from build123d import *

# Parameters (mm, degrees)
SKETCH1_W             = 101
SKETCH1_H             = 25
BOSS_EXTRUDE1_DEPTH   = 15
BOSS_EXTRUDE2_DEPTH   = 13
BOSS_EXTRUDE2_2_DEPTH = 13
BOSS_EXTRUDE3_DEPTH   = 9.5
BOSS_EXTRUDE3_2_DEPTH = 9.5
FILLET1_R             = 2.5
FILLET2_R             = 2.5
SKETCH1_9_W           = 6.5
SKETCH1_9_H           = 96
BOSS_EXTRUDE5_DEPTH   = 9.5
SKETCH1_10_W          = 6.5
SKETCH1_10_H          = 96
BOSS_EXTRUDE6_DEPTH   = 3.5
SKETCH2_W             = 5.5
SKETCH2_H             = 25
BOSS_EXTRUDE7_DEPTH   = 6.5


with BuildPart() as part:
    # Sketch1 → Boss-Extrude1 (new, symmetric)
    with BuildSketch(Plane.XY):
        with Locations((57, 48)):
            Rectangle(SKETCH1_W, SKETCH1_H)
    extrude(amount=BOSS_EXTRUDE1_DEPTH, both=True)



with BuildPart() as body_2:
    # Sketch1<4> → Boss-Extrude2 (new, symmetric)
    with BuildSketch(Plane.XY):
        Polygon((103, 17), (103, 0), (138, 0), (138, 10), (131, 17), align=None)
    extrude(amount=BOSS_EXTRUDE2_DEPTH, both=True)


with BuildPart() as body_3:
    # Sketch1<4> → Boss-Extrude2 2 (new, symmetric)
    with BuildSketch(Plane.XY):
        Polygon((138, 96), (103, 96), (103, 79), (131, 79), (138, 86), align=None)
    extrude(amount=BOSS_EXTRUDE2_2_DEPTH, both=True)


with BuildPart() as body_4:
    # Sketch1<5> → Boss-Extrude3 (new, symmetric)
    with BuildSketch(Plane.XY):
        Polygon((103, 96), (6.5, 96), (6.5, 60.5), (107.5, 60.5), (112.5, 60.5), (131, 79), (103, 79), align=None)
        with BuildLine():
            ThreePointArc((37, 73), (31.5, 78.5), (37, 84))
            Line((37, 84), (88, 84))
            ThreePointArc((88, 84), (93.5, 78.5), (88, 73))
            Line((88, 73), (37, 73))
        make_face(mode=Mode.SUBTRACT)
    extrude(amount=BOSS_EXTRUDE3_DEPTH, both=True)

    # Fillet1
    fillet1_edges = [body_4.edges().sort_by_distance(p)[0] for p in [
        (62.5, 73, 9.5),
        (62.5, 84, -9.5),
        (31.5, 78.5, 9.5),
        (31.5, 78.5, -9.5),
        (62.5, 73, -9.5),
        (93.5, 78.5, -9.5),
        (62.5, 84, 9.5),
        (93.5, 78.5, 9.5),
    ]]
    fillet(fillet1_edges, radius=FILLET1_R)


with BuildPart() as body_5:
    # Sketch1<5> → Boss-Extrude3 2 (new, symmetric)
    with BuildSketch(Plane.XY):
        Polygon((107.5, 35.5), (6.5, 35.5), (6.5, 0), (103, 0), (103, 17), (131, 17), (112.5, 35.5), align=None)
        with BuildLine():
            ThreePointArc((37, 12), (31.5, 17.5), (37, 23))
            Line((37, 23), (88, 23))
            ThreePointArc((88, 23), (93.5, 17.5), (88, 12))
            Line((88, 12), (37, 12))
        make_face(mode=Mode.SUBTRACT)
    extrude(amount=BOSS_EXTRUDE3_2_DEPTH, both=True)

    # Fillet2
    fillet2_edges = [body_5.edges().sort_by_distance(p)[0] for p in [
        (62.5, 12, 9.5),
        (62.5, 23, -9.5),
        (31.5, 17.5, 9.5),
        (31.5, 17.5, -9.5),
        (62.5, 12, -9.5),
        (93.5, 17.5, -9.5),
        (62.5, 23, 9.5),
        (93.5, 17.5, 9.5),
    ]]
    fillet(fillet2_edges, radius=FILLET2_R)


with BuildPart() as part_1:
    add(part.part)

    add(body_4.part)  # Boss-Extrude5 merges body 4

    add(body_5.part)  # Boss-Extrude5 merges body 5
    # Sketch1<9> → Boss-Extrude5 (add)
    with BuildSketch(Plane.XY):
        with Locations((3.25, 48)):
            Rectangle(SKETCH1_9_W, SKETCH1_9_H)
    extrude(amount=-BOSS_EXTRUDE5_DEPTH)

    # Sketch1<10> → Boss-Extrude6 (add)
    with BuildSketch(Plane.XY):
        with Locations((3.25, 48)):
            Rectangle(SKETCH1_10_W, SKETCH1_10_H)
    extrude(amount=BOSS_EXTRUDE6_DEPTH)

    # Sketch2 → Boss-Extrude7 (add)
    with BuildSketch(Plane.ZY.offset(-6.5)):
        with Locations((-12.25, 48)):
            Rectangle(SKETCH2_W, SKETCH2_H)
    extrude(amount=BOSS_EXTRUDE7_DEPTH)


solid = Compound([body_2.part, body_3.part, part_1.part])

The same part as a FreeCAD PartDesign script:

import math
import FreeCAD as App
import Part
import Sketcher
from FreeCAD import Vector
Q = App.Units.Quantity


def edges_at(feature, points):
    """Names of the edges that pass closest to the given points."""
    edges = feature.Shape.Edges
    near = lambda p: min(range(len(edges)), key=lambda i: edges[i].distToShape(Part.Vertex(*p))[0])
    return sorted({f"Edge{near(p) + 1}" for p in points})

doc = App.newDocument("Part")
body = doc.addObject("PartDesign::Body", "Body")

sketch1 = body.newObject("Sketcher::SketchObject", "Sketch")
sketch1.AttachmentSupport = (doc.getObject("XY_Plane"), [""])
sketch1.MapMode = "FlatFace"
sketch1.addGeometry([
    Part.LineSegment(Vector(6.5, 60.5, 0), Vector(6.5, 35.5, 0)),
    Part.LineSegment(Vector(6.5, 35.5, 0), Vector(107.5, 35.5, 0)),
    Part.LineSegment(Vector(107.5, 35.5, 0), Vector(107.5, 60.5, 0)),
    Part.LineSegment(Vector(107.5, 60.5, 0), Vector(6.5, 60.5, 0)),
], False)
sketch1.addConstraint([
    Sketcher.Constraint("Coincident", 0, 2, 1, 1),
    Sketcher.Constraint("Coincident", 1, 2, 2, 1),
    Sketcher.Constraint("Coincident", 2, 2, 3, 1),
    Sketcher.Constraint("Coincident", 3, 2, 0, 1),
    Sketcher.Constraint("Vertical", 0),
    Sketcher.Constraint("Horizontal", 1),
    Sketcher.Constraint("Vertical", 2),
    Sketcher.Constraint("Horizontal", 3),
    Sketcher.Constraint("DistanceX", 1, 1, 1, 2, 101.0),
    Sketcher.Constraint("DistanceY", 0, 2, 0, 1, 25.0),
    Sketcher.Constraint("DistanceX", -1, 1, 0, 2, 6.5),
    Sketcher.Constraint("DistanceY", -1, 1, 0, 2, 35.5),
])
pad1 = body.newObject("PartDesign::Pad", "Pad")
pad1.Profile = sketch1
pad1.Length = 30
pad1.Midplane = True
body2 = doc.addObject("PartDesign::Body", "Body001")

sketch2 = body2.newObject("Sketcher::SketchObject", "Sketch001")
sketch2.AttachmentSupport = (doc.getObject("XY_Plane001"), [""])
sketch2.MapMode = "FlatFace"
sketch2.addGeometry([
    Part.LineSegment(Vector(103, 17, 0), Vector(103, 0, 0)),
    Part.LineSegment(Vector(103, 0, 0), Vector(138, 0, 0)),
    Part.LineSegment(Vector(138, 0, 0), Vector(138, 10, 0)),
    Part.LineSegment(Vector(138, 10, 0), Vector(131, 17, 0)),
    Part.LineSegment(Vector(131, 17, 0), Vector(103, 17, 0)),
], False)
sketch2.addConstraint([
    Sketcher.Constraint("Coincident", 0, 2, 1, 1),
    Sketcher.Constraint("Coincident", 1, 2, 2, 1),
    Sketcher.Constraint("Coincident", 2, 2, 3, 1),
    Sketcher.Constraint("Coincident", 3, 2, 4, 1),
    Sketcher.Constraint("Coincident", 4, 2, 0, 1),
    Sketcher.Constraint("Vertical", 0),
    Sketcher.Constraint("Horizontal", 1),
    Sketcher.Constraint("Vertical", 2),
    Sketcher.Constraint("Horizontal", 4),
    Sketcher.Constraint("PointOnObject", 0, 2, -1),
    Sketcher.Constraint("DistanceX", 1, 1, 1, 2, 35.0),
    Sketcher.Constraint("DistanceX", 4, 2, 4, 1, 28.0),
    Sketcher.Constraint("DistanceY", 0, 2, 0, 1, 17.0),
    Sketcher.Constraint("DistanceY", 2, 1, 2, 2, 10.0),
    Sketcher.Constraint("DistanceX", -1, 1, 0, 2, 103.0),
])
pad2 = body2.newObject("PartDesign::Pad", "Pad001")
pad2.Profile = sketch2
pad2.Length = 26
pad2.Midplane = True
body3 = doc.addObject("PartDesign::Body", "Body002")

sketch3 = body3.newObject("Sketcher::SketchObject", "Sketch002")
sketch3.AttachmentSupport = (doc.getObject("XY_Plane002"), [""])
sketch3.MapMode = "FlatFace"
sketch3.addGeometry([
    Part.LineSegment(Vector(138, 96, 0), Vector(103, 96, 0)),
    Part.LineSegment(Vector(103, 96, 0), Vector(103, 79, 0)),
    Part.LineSegment(Vector(103, 79, 0), Vector(131, 79, 0)),
    Part.LineSegment(Vector(131, 79, 0), Vector(138, 86, 0)),
    Part.LineSegment(Vector(138, 86, 0), Vector(138, 96, 0)),
], False)
sketch3.addConstraint([
    Sketcher.Constraint("Coincident", 0, 2, 1, 1),
    Sketcher.Constraint("Coincident", 1, 2, 2, 1),
    Sketcher.Constraint("Coincident", 2, 2, 3, 1),
    Sketcher.Constraint("Coincident", 3, 2, 4, 1),
    Sketcher.Constraint("Coincident", 4, 2, 0, 1),
    Sketcher.Constraint("Horizontal", 0),
    Sketcher.Constraint("Vertical", 1),
    Sketcher.Constraint("Horizontal", 2),
    Sketcher.Constraint("Vertical", 4),
    Sketcher.Constraint("DistanceX", 0, 2, 0, 1, 35.0),
    Sketcher.Constraint("DistanceX", 2, 1, 2, 2, 28.0),
    Sketcher.Constraint("DistanceY", 1, 2, 1, 1, 17.0),
    Sketcher.Constraint("DistanceY", 4, 1, 4, 2, 10.0),
    Sketcher.Constraint("DistanceX", -1, 1, 0, 2, 103.0),
    Sketcher.Constraint("DistanceY", -1, 1, 0, 2, 96.0),
])
pad3 = body3.newObject("PartDesign::Pad", "Pad002")
pad3.Profile = sketch3
pad3.Length = 26
pad3.Midplane = True
body4 = doc.addObject("PartDesign::Body", "Body003")

sketch4 = body4.newObject("Sketcher::SketchObject", "Sketch003")
sketch4.AttachmentSupport = (doc.getObject("XY_Plane003"), [""])
sketch4.MapMode = "FlatFace"
sketch4.addGeometry([
    Part.LineSegment(Vector(103, 96, 0), Vector(6.5, 96, 0)),
    Part.LineSegment(Vector(6.5, 96, 0), Vector(6.5, 60.5, 0)),
    Part.LineSegment(Vector(6.5, 60.5, 0), Vector(112.5, 60.5, 0)),
    Part.LineSegment(Vector(112.5, 60.5, 0), Vector(131, 79, 0)),
    Part.LineSegment(Vector(131, 79, 0), Vector(103, 79, 0)),
    Part.LineSegment(Vector(103, 79, 0), Vector(103, 96, 0)),
    Part.LineSegment(Vector(88, 73, 0), Vector(37, 73, 0)),
    Part.ArcOfCircle(Part.Circle(Vector(37, 78.5, 0), Vector(0, 0, 1), 5.5), math.radians(90), math.radians(270)),
    Part.LineSegment(Vector(37, 84, 0), Vector(88, 84, 0)),
    Part.ArcOfCircle(Part.Circle(Vector(88, 78.5, 0), Vector(0, 0, 1), 5.5), math.radians(-90), math.radians(90)),
], False)
sketch4.addConstraint([
    Sketcher.Constraint("Coincident", 0, 2, 1, 1),
    Sketcher.Constraint("Coincident", 1, 2, 2, 1),
    Sketcher.Constraint("Coincident", 2, 2, 3, 1),
    Sketcher.Constraint("Coincident", 3, 2, 4, 1),
    Sketcher.Constraint("Coincident", 4, 2, 5, 1),
    Sketcher.Constraint("Coincident", 5, 2, 0, 1),
    Sketcher.Constraint("Tangent", 6, 2, 7, 2),
    Sketcher.Constraint("Tangent", 7, 1, 8, 1),
    Sketcher.Constraint("Tangent", 8, 2, 9, 2),
    Sketcher.Constraint("Tangent", 9, 1, 6, 1),
    Sketcher.Constraint("Horizontal", 0),
    Sketcher.Constraint("Vertical", 1),
    Sketcher.Constraint("Horizontal", 2),
    Sketcher.Constraint("Horizontal", 4),
    Sketcher.Constraint("Vertical", 5),
    Sketcher.Constraint("Horizontal", 6),
    Sketcher.Constraint("Horizontal", 8),
    Sketcher.Constraint("Radius", 7, 5.5),
    Sketcher.Constraint("DistanceX", 2, 1, 2, 2, 106.0),
    Sketcher.Constraint("DistanceX", 4, 2, 4, 1, 28.0),
    Sketcher.Constraint("DistanceX", 6, 2, 6, 1, 51.0),
    Sketcher.Constraint("DistanceY", 5, 1, 5, 2, 17.0),
    Sketcher.Constraint("Angle", 3, Q("45 deg")),
    Sketcher.Constraint("DistanceX", 0, 2, 0, 1, 96.5),
    Sketcher.Constraint("DistanceX", -1, 1, 7, 3, 37.0),
    Sketcher.Constraint("DistanceY", -1, 1, 0, 2, 96.0),
    Sketcher.Constraint("DistanceX", -1, 1, 3, 2, 131.0),
    Sketcher.Constraint("DistanceY", -1, 1, 6, 2, 73.0),
])
pad4 = body4.newObject("PartDesign::Pad", "Pad003")
pad4.Profile = sketch4
pad4.Length = 19
pad4.Midplane = True
doc.recompute()

fillet = body4.newObject("PartDesign::Fillet", "Fillet")
fillet.Base = (pad4, edges_at(pad4, [
    (62.5, 73, 9.5),
    (62.5, 84, -9.5),
    (31.5, 78.5, 9.5),
    (31.5, 78.5, -9.5),
    (62.5, 73, -9.5),
    (93.5, 78.5, -9.5),
    (62.5, 84, 9.5),
    (93.5, 78.5, 9.5),
]))
fillet.Radius = 2.5
body5 = doc.addObject("PartDesign::Body", "Body004")

sketch5 = body5.newObject("Sketcher::SketchObject", "Sketch004")
sketch5.AttachmentSupport = (doc.getObject("XY_Plane004"), [""])
sketch5.MapMode = "FlatFace"
sketch5.addGeometry([
    Part.LineSegment(Vector(6.5, 35.5, 0), Vector(6.5, 0, 0)),
    Part.LineSegment(Vector(6.5, 0, 0), Vector(103, 0, 0)),
    Part.LineSegment(Vector(103, 0, 0), Vector(103, 17, 0)),
    Part.LineSegment(Vector(103, 17, 0), Vector(131, 17, 0)),
    Part.LineSegment(Vector(131, 17, 0), Vector(112.5, 35.5, 0)),
    Part.LineSegment(Vector(112.5, 35.5, 0), Vector(6.5, 35.5, 0)),
    Part.LineSegment(Vector(88, 12, 0), Vector(37, 12, 0)),
    Part.ArcOfCircle(Part.Circle(Vector(37, 17.5, 0), Vector(0, 0, 1), 5.5), math.radians(90), math.radians(270)),
    Part.LineSegment(Vector(37, 23, 0), Vector(88, 23, 0)),
    Part.ArcOfCircle(Part.Circle(Vector(88, 17.5, 0), Vector(0, 0, 1), 5.5), math.radians(-90), math.radians(90)),
], False)
sketch5.addConstraint([
    Sketcher.Constraint("Coincident", 0, 2, 1, 1),
    Sketcher.Constraint("Coincident", 1, 2, 2, 1),
    Sketcher.Constraint("Coincident", 2, 2, 3, 1),
    Sketcher.Constraint("Coincident", 3, 2, 4, 1),
    Sketcher.Constraint("Coincident", 4, 2, 5, 1),
    Sketcher.Constraint("Coincident", 5, 2, 0, 1),
    Sketcher.Constraint("Tangent", 6, 2, 7, 2),
    Sketcher.Constraint("Tangent", 7, 1, 8, 1),
    Sketcher.Constraint("Tangent", 8, 2, 9, 2),
    Sketcher.Constraint("Tangent", 9, 1, 6, 1),
    Sketcher.Constraint("Vertical", 0),
    Sketcher.Constraint("Horizontal", 1),
    Sketcher.Constraint("Vertical", 2),
    Sketcher.Constraint("Horizontal", 3),
    Sketcher.Constraint("Horizontal", 5),
    Sketcher.Constraint("Horizontal", 6),
    Sketcher.Constraint("Horizontal", 8),
    Sketcher.Constraint("PointOnObject", 0, 2, -1),
    Sketcher.Constraint("Radius", 7, 5.5),
    Sketcher.Constraint("DistanceX", 3, 1, 3, 2, 28.0),
    Sketcher.Constraint("DistanceX", 5, 2, 5, 1, 106.0),
    Sketcher.Constraint("DistanceX", 6, 2, 6, 1, 51.0),
    Sketcher.Constraint("DistanceY", 2, 1, 2, 2, 17.0),
    Sketcher.Constraint("Angle", 4, Q("135 deg")),
    Sketcher.Constraint("DistanceX", 1, 1, 1, 2, 96.5),
    Sketcher.Constraint("DistanceX", -1, 1, 7, 3, 37.0),
    Sketcher.Constraint("DistanceX", -1, 1, 1, 2, 103.0),
    Sketcher.Constraint("DistanceY", -1, 1, 6, 2, 12.0),
])
pad5 = body5.newObject("PartDesign::Pad", "Pad004")
pad5.Profile = sketch5
pad5.Length = 19
pad5.Midplane = True
doc.recompute()

fillet2 = body5.newObject("PartDesign::Fillet", "Fillet001")
fillet2.Base = (pad5, edges_at(pad5, [
    (62.5, 12, 9.5),
    (62.5, 23, -9.5),
    (31.5, 17.5, 9.5),
    (31.5, 17.5, -9.5),
    (62.5, 12, -9.5),
    (93.5, 17.5, -9.5),
    (62.5, 23, 9.5),
    (93.5, 17.5, 9.5),
]))
fillet2.Radius = 2.5
doc.recompute()

boolean = body.newObject("PartDesign::Boolean", "Boolean")
boolean.Type = "Fuse"
boolean.addObjects([body4])
doc.recompute()

boolean2 = body.newObject("PartDesign::Boolean", "Boolean001")
boolean2.Type = "Fuse"
boolean2.addObjects([body5])

sketch6 = body.newObject("Sketcher::SketchObject", "Sketch005")
sketch6.AttachmentSupport = (doc.getObject("XY_Plane"), [""])
sketch6.MapMode = "FlatFace"
sketch6.addGeometry([
    Part.LineSegment(Vector(0, 96, 0), Vector(0, 0, 0)),
    Part.LineSegment(Vector(0, 0, 0), Vector(6.5, 0, 0)),
    Part.LineSegment(Vector(6.5, 0, 0), Vector(6.5, 96, 0)),
    Part.LineSegment(Vector(6.5, 96, 0), Vector(0, 96, 0)),
], False)
sketch6.addConstraint([
    Sketcher.Constraint("Coincident", 0, 2, 1, 1),
    Sketcher.Constraint("Coincident", 1, 2, 2, 1),
    Sketcher.Constraint("Coincident", 2, 2, 3, 1),
    Sketcher.Constraint("Coincident", 3, 2, 0, 1),
    Sketcher.Constraint("Vertical", 0),
    Sketcher.Constraint("Horizontal", 1),
    Sketcher.Constraint("Vertical", 2),
    Sketcher.Constraint("Horizontal", 3),
    Sketcher.Constraint("Coincident", 0, 2, -1, 1),
    Sketcher.Constraint("DistanceY", 0, 2, 0, 1, 96.0),
    Sketcher.Constraint("DistanceX", 1, 1, 1, 2, 6.5),
])
pad6 = body.newObject("PartDesign::Pad", "Pad005")
pad6.Profile = sketch6
pad6.Length = 9.5
pad6.Reversed = True

sketch7 = body.newObject("Sketcher::SketchObject", "Sketch006")
sketch7.AttachmentSupport = (doc.getObject("XY_Plane"), [""])
sketch7.MapMode = "FlatFace"
sketch7.addGeometry([
    Part.LineSegment(Vector(0, 96, 0), Vector(0, 0, 0)),
    Part.LineSegment(Vector(0, 0, 0), Vector(6.5, 0, 0)),
    Part.LineSegment(Vector(6.5, 0, 0), Vector(6.5, 96, 0)),
    Part.LineSegment(Vector(6.5, 96, 0), Vector(0, 96, 0)),
], False)
sketch7.addConstraint([
    Sketcher.Constraint("Coincident", 0, 2, 1, 1),
    Sketcher.Constraint("Coincident", 1, 2, 2, 1),
    Sketcher.Constraint("Coincident", 2, 2, 3, 1),
    Sketcher.Constraint("Coincident", 3, 2, 0, 1),
    Sketcher.Constraint("Vertical", 0),
    Sketcher.Constraint("Horizontal", 1),
    Sketcher.Constraint("Vertical", 2),
    Sketcher.Constraint("Horizontal", 3),
    Sketcher.Constraint("Coincident", 0, 2, -1, 1),
    Sketcher.Constraint("DistanceY", 0, 2, 0, 1, 96.0),
    Sketcher.Constraint("DistanceX", 1, 1, 1, 2, 6.5),
])
pad7 = body.newObject("PartDesign::Pad", "Pad006")
pad7.Profile = sketch7
pad7.Length = 3.5

sketch8 = body.newObject("Sketcher::SketchObject", "Sketch007")
sketch8.AttachmentSupport = (doc.getObject("YZ_Plane"), [""])
sketch8.MapMode = "FlatFace"
sketch8.AttachmentOffset = App.Placement(Vector(0, 0, 6.5), App.Rotation())
sketch8.addGeometry([
    Part.LineSegment(Vector(60.5, -15, 0), Vector(35.5, -15, 0)),
    Part.LineSegment(Vector(35.5, -15, 0), Vector(35.5, -9.5, 0)),
    Part.LineSegment(Vector(35.5, -9.5, 0), Vector(60.5, -9.5, 0)),
    Part.LineSegment(Vector(60.5, -9.5, 0), Vector(60.5, -15, 0)),
], False)
sketch8.addConstraint([
    Sketcher.Constraint("Coincident", 0, 2, 1, 1),
    Sketcher.Constraint("Coincident", 1, 2, 2, 1),
    Sketcher.Constraint("Coincident", 2, 2, 3, 1),
    Sketcher.Constraint("Coincident", 3, 2, 0, 1),
    Sketcher.Constraint("Horizontal", 0),
    Sketcher.Constraint("Vertical", 1),
    Sketcher.Constraint("Horizontal", 2),
    Sketcher.Constraint("Vertical", 3),
    Sketcher.Constraint("DistanceX", 0, 2, 0, 1, 25.0),
    Sketcher.Constraint("DistanceY", 1, 1, 1, 2, 5.5),
    Sketcher.Constraint("DistanceY", 0, 2, -1, 1, 15.0),
    Sketcher.Constraint("DistanceX", -1, 1, 0, 2, 35.5),
])
pad8 = body.newObject("PartDesign::Pad", "Pad007")
pad8.Profile = sketch8
pad8.Length = 6.5
pad8.Reversed = True

doc.recompute()
